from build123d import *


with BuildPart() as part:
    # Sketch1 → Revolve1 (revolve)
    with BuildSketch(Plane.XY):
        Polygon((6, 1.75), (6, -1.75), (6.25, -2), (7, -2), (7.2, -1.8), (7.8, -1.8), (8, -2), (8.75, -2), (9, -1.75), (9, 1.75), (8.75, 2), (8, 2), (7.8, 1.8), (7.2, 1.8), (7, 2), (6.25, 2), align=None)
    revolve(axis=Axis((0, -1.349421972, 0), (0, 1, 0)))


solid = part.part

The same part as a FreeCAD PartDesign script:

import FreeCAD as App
import Part
import Sketcher

V = App.Vector
Q = App.Units.Quantity


def add_polygon(sketch, points):
    """Adds a closed chain of lines whose ends are joined by coincident constraints."""
    first, n = sketch.GeometryCount, len(points)
    for a, b in zip(points, points[1:] + points[:1]):
        sketch.addGeometry(Part.LineSegment(App.Vector(*a, 0), App.Vector(*b, 0)), False)
    for i in range(n):
        sketch.addConstraint(Sketcher.Constraint("Coincident", first + i, 2, first + (i + 1) % n, 1))

doc = App.newDocument("Part")
body = doc.addObject("PartDesign::Body", "Body")

sketch1 = body.newObject("Sketcher::SketchObject", "Sketch")
sketch1.AttachmentSupport = (doc.getObject("XY_Plane"), [""])
sketch1.MapMode = "FlatFace"
add_polygon(sketch1, [(6, 1.75), (6, -1.75), (6.25, -2), (7, -2), (7.2, -1.8), (7.8, -1.8), (8, -2), (8.75, -2), (9, -1.75), (9, 1.75), (8.75, 2), (8, 2), (7.8, 1.8), (7.2, 1.8), (7, 2), (6.25, 2)])
sketch1.addConstraint([
    Sketcher.Constraint("Vertical", 0),
    Sketcher.Constraint("Horizontal", 2),
    Sketcher.Constraint("Horizontal", 4),
    Sketcher.Constraint("Horizontal", 6),
    Sketcher.Constraint("Vertical", 8),
    Sketcher.Constraint("Horizontal", 10),
    Sketcher.Constraint("Horizontal", 12),
    Sketcher.Constraint("Horizontal", 14),
    Sketcher.Constraint("Symmetric", 6, 2, 9, 2, -1),
    Sketcher.Constraint("Symmetric", 4, 2, 11, 2, -1),
    Sketcher.Constraint("Symmetric", 2, 2, 13, 2, -1),
    Sketcher.Constraint("Perpendicular", 1, 3),
    Sketcher.Constraint("Perpendicular", 3, 5),
    Sketcher.Constraint("Perpendicular", 5, 7),
    Sketcher.Constraint("Perpendicular", 7, 9),
    Sketcher.Constraint("Perpendicular", 9, 11),
    Sketcher.Constraint("Perpendicular", 11, 13),
    Sketcher.Constraint("Perpendicular", 13, 15),
    Sketcher.Constraint("Horizontal", 2, 2, 5, 2),
    Sketcher.Constraint("Horizontal", 0, 2, 7, 2),
    Sketcher.Constraint("Horizontal", 8, 2, 15, 2),
    Sketcher.Constraint("Vertical", 5, 2, 10, 2),
    Sketcher.Constraint("Equal", 2, 6),
    Sketcher.Constraint("DistanceX", 4, 1, 4, 2, Q("0.6 mm")),
    Sketcher.Constraint("DistanceY", 0, 2, 0, 1, Q("3.5 mm")),
    Sketcher.Constraint("DistanceX", -1, 1, 0, 2, Q("6 mm")),
    Sketcher.Constraint("DistanceY", 1, 2, -1, 1, Q("2 mm")),
    Sketcher.Constraint("DistanceX", -1, 1, 2, 2, Q("7 mm")),
    Sketcher.Constraint("DistanceX", -1, 1, 5, 2, Q("8 mm")),
])
revolution = body.newObject("PartDesign::Revolution", "Revolution")
revolution.Profile = sketch1
revolution.ReferenceAxis = (sketch1, ["V_Axis"])
revolution.Angle = 360

doc.recompute()
